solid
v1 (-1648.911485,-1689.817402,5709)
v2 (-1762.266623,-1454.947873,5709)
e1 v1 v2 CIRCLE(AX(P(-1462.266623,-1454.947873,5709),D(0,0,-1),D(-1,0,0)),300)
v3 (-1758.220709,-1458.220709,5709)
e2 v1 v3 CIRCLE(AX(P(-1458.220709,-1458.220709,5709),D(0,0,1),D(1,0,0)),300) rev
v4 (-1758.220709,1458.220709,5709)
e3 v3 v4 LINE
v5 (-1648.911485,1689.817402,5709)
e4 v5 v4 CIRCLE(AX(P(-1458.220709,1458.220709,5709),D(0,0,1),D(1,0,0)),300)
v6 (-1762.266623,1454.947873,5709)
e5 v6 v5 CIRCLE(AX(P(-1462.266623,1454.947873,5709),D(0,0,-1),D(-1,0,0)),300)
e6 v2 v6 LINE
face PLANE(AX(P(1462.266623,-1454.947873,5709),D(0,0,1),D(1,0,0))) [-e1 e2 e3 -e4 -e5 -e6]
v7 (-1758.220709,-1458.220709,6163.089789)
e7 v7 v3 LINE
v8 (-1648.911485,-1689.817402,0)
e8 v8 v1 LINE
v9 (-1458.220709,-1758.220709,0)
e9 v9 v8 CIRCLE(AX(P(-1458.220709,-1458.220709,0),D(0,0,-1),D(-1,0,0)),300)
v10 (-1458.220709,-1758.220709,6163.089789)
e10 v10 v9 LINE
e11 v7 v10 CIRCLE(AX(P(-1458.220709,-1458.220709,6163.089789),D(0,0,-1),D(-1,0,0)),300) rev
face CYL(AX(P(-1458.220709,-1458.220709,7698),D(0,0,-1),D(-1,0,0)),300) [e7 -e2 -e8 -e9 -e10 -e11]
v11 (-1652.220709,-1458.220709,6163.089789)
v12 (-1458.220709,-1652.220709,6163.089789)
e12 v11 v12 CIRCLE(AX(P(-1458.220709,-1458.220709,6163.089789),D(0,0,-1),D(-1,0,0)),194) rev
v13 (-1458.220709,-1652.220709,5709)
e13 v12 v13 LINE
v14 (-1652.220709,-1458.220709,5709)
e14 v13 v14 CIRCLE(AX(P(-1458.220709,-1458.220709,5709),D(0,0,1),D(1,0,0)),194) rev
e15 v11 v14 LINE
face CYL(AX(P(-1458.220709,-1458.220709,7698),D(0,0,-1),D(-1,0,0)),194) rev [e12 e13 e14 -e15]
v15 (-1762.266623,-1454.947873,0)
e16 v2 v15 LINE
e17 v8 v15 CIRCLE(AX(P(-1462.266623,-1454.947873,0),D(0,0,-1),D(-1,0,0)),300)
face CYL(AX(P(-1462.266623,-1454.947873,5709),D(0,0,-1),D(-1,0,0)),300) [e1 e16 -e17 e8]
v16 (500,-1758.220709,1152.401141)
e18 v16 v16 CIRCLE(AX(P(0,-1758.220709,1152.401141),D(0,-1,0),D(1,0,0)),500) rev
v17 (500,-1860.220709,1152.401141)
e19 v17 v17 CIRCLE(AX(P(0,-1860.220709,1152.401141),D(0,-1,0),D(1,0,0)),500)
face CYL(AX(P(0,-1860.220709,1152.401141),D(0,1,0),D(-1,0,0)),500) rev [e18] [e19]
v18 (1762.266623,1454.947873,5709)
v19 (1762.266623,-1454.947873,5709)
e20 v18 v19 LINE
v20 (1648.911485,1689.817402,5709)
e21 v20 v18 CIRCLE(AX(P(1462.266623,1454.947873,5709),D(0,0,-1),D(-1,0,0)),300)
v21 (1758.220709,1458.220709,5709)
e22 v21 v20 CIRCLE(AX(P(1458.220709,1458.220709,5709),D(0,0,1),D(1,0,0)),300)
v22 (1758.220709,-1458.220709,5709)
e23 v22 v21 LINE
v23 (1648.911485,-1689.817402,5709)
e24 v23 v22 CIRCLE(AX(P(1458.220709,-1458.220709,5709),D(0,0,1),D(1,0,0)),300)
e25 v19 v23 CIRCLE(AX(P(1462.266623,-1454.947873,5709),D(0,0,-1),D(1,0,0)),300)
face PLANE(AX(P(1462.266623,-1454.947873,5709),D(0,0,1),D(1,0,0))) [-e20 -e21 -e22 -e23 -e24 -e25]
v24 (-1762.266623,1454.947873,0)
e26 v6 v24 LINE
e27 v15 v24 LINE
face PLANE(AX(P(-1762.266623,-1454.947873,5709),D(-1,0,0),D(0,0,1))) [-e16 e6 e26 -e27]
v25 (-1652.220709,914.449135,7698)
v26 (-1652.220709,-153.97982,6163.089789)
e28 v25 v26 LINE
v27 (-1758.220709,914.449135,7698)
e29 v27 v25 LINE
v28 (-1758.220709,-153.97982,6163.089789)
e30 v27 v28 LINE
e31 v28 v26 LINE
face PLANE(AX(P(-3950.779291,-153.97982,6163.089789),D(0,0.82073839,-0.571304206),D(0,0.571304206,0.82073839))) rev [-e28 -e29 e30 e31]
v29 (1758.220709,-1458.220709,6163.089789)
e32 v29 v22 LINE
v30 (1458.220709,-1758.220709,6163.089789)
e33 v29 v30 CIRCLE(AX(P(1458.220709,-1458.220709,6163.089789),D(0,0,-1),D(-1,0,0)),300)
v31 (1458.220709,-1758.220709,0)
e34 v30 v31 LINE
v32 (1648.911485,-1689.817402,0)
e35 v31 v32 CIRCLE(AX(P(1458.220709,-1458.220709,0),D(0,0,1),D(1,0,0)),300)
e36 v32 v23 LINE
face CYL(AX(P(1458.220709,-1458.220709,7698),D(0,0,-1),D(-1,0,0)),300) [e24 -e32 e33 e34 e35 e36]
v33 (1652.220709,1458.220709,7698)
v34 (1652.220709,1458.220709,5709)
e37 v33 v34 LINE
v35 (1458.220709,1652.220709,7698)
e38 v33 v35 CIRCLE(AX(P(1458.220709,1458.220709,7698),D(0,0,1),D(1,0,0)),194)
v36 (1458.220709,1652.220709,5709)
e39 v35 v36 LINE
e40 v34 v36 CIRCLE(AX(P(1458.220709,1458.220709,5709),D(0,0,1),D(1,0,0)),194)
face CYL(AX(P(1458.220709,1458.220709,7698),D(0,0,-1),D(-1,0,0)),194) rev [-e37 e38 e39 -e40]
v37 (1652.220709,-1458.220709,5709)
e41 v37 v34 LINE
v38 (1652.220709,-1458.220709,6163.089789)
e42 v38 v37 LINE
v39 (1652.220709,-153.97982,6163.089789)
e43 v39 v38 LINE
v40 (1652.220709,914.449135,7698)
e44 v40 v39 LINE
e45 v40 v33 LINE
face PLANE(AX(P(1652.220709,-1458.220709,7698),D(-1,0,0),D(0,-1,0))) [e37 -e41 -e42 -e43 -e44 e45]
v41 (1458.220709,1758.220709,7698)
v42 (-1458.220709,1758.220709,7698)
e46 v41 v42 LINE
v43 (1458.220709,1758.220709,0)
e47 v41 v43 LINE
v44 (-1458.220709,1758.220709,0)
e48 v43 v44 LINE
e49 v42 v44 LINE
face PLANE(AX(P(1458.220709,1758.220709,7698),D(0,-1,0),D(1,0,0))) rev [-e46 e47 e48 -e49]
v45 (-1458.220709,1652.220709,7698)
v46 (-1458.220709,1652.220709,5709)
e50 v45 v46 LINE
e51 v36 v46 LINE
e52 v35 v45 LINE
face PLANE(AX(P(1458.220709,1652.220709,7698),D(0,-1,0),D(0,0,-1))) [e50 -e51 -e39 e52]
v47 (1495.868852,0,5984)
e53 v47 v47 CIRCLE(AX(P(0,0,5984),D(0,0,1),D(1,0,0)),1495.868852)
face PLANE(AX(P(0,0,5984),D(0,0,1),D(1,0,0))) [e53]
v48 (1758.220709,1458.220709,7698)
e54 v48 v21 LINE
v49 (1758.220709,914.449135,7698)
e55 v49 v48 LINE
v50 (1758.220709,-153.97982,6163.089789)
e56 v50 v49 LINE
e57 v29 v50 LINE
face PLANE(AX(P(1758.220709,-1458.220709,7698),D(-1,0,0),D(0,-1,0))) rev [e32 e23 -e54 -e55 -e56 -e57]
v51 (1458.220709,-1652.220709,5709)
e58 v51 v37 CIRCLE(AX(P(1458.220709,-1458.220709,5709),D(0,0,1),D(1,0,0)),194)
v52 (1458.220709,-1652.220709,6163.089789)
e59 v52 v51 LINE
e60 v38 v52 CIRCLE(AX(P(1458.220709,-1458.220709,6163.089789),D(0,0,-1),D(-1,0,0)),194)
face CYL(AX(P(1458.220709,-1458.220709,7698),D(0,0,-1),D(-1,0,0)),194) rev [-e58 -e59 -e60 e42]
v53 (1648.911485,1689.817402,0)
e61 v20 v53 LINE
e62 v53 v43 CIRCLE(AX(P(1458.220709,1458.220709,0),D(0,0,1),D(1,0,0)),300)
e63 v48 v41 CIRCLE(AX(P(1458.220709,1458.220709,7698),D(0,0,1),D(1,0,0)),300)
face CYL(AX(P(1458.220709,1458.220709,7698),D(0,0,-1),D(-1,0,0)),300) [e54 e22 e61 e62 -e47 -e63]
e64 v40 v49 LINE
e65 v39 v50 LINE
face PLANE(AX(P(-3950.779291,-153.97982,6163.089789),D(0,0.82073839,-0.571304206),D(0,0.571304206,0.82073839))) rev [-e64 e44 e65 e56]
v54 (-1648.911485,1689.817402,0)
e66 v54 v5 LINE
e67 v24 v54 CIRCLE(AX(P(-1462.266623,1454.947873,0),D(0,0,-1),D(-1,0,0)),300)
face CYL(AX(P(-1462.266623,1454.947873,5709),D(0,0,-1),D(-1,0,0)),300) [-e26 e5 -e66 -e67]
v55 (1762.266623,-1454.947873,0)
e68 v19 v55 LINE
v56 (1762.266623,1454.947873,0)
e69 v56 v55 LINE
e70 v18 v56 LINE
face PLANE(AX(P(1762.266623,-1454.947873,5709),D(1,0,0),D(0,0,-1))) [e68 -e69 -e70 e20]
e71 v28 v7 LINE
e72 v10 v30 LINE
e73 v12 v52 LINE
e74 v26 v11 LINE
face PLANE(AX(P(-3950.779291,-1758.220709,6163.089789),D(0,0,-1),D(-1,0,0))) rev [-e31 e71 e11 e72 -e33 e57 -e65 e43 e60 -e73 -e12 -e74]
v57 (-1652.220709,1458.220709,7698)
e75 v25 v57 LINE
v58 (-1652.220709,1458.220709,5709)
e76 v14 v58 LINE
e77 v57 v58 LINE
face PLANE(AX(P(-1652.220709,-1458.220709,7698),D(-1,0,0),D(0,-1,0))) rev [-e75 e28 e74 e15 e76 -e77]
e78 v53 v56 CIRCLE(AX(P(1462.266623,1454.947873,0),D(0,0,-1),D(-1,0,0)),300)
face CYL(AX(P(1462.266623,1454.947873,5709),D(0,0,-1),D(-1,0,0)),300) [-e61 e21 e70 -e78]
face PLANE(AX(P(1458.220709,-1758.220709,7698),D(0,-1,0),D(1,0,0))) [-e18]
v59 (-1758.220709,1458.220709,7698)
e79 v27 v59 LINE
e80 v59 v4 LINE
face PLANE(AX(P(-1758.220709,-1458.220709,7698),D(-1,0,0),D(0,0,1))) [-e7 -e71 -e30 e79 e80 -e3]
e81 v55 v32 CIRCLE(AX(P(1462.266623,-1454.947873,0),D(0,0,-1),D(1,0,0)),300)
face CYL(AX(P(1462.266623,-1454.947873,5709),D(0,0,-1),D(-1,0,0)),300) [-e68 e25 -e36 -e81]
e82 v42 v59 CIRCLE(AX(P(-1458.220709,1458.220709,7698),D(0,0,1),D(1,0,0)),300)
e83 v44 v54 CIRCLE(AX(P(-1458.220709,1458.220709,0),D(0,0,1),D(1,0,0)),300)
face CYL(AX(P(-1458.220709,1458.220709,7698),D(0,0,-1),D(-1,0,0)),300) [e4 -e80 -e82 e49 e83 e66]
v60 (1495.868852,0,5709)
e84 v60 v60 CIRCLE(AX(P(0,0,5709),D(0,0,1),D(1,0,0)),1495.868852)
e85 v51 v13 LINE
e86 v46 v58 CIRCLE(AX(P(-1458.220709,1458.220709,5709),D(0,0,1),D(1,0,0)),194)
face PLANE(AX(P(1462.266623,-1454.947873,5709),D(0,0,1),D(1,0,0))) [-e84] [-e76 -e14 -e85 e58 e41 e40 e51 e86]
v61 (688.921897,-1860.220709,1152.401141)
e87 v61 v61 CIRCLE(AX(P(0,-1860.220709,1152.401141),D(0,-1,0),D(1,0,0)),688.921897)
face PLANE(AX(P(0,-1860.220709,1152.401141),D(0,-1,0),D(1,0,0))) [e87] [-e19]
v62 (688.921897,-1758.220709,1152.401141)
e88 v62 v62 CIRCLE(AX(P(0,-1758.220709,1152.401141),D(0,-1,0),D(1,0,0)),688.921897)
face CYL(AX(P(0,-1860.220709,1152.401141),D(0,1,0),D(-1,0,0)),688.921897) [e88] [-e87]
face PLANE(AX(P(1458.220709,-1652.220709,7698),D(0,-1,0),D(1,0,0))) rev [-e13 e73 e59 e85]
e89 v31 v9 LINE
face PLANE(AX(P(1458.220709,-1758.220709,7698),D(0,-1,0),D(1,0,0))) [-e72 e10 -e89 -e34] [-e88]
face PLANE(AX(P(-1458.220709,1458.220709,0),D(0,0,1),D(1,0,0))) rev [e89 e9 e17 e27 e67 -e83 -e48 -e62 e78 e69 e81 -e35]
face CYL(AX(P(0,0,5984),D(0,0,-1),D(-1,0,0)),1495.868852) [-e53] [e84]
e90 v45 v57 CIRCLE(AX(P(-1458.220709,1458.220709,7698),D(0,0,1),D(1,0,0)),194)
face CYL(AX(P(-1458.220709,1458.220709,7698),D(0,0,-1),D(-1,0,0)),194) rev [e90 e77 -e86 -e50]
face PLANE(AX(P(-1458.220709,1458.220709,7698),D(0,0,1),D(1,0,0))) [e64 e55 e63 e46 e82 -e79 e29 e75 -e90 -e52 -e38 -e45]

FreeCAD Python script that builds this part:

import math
import FreeCAD as App
import Part
import Sketcher
from FreeCAD import Vector
Q = App.Units.Quantity

doc = App.newDocument("Part")
params = doc.addObject("Spreadsheet::Sheet", "Params")
for row, (alias, value) in enumerate([
    ("sketch1_radius", "300 mm"),
    ("sketch1_radius2", "194 mm"),
    ("pad1_length", "7698 mm"),
    ("sketch2_radius", "300 mm"),
    ("pad2_length", "5709 mm"),
    ("pocket1_length", "5709 mm"),
    ("sketch4_diameter", "1000 mm"),
    ("pad3_length", "102 mm"),
    ("pad4_length", "275 mm"),
], start=1):
    params.set(f"A{row}", alias)
    params.set(f"B{row}", "=" + value)
    params.setAlias(f"B{row}", alias)

body = doc.addObject("PartDesign::Body", "Body")

# Sketch on XY plane
sketch1 = body.newObject("Sketcher::SketchObject", "Sketch")
sketch1.AttachmentSupport = (doc.getObject("XY_Plane"), [""])
sketch1.MapMode = "FlatFace"
sketch1.addGeometry([
    Part.LineSegment(Vector(-1458, -1758, 0), Vector(1458, -1758, 0)),  # 0
    Part.ArcOfCircle(Part.Circle(Vector(1458, -1458, 0), Vector(0, 0, 1), 300), math.radians(-90), math.radians(0)),  # 1
    Part.LineSegment(Vector(1758, -1458, 0), Vector(1758, 1458, 0)),  # 2
    Part.ArcOfCircle(Part.Circle(Vector(1458, 1458, 0), Vector(0, 0, 1), 300), math.radians(0), math.radians(90)),  # 3
    Part.LineSegment(Vector(1458, 1758, 0), Vector(-1458, 1758, 0)),  # 4
    Part.ArcOfCircle(Part.Circle(Vector(-1458, 1458, 0), Vector(0, 0, 1), 300), math.radians(90), math.radians(180)),  # 5
    Part.LineSegment(Vector(-1758, 1458, 0), Vector(-1758, -1458, 0)),  # 6
    Part.ArcOfCircle(Part.Circle(Vector(-1458, -1458, 0), Vector(0, 0, 1), 300), math.radians(180), math.radians(270)),  # 7
    Part.ArcOfCircle(Part.Circle(Vector(1458, 1458, 0), Vector(0, 0, 1), 194), math.radians(0), math.radians(90)),  # 8
    Part.LineSegment(Vector(1652, 1458, 0), Vector(1652, -1458, 0)),  # 9
    Part.ArcOfCircle(Part.Circle(Vector(1458, -1458, 0), Vector(0, 0, 1), 194), math.radians(-90), math.radians(0)),  # 10
    Part.LineSegment(Vector(1458, -1652, 0), Vector(-1458, -1652, 0)),  # 11
    Part.ArcOfCircle(Part.Circle(Vector(-1458, -1458, 0), Vector(0, 0, 1), 194), math.radians(-180), math.radians(-90)),  # 12
    Part.LineSegment(Vector(-1652, -1458, 0), Vector(-1652, 1458, 0)),  # 13
    Part.ArcOfCircle(Part.Circle(Vector(-1458, 1458, 0), Vector(0, 0, 1), 194), math.radians(90), math.radians(180)),  # 14
    Part.LineSegment(Vector(-1458, 1652, 0), Vector(1458, 1652, 0)),  # 15
], False)
sketch1.addConstraint([
    Sketcher.Constraint("Tangent", 0, 2, 1, 1),
    Sketcher.Constraint("Tangent", 1, 2, 2, 1),
    Sketcher.Constraint("Tangent", 2, 2, 3, 1),
    Sketcher.Constraint("Tangent", 3, 2, 4, 1),
    Sketcher.Constraint("Tangent", 4, 2, 5, 1),
    Sketcher.Constraint("Tangent", 5, 2, 6, 1),
    Sketcher.Constraint("Tangent", 6, 2, 7, 1),
    Sketcher.Constraint("Tangent", 7, 2, 0, 1),
    Sketcher.Constraint("Tangent", 8, 1, 9, 1),
    Sketcher.Constraint("Tangent", 9, 2, 10, 2),
    Sketcher.Constraint("Tangent", 10, 1, 11, 1),
    Sketcher.Constraint("Tangent", 11, 2, 12, 2),
    Sketcher.Constraint("Tangent", 12, 1, 13, 1),
    Sketcher.Constraint("Tangent", 13, 2, 14, 2),
    Sketcher.Constraint("Tangent", 14, 1, 15, 1),
    Sketcher.Constraint("Tangent", 15, 2, 8, 2),
    Sketcher.Constraint("Horizontal", 0),
    Sketcher.Constraint("Vertical", 2),
    Sketcher.Constraint("Horizontal", 4),
    Sketcher.Constraint("Vertical", 6),
    Sketcher.Constraint("Vertical", 9),
    Sketcher.Constraint("Horizontal", 11),
    Sketcher.Constraint("Vertical", 13),
    Sketcher.Constraint("Horizontal", 15),
    Sketcher.Constraint("Coincident", 8, 3, 3, 3),
    Sketcher.Constraint("Coincident", 10, 3, 1, 3),
    Sketcher.Constraint("Coincident", 12, 3, 7, 3),
    Sketcher.Constraint("Equal", 1, 3),
    Sketcher.Constraint("Equal", 3, 5),
    Sketcher.Constraint("Equal", 5, 7),
    Sketcher.Constraint("Equal", 12, 14),
    Sketcher.Constraint("Symmetric", 1, 3, 5, 3, -1, 1),
    Sketcher.Constraint("Equal", 15, 2),
    Sketcher.Constraint("Radius", 1, Q("300 mm")),
    Sketcher.Constraint("Radius", 8, Q("194 mm")),
    Sketcher.Constraint("DistanceX", 0, 1, 0, 2, Q("2916.441419 mm")),
])
sketch1.setExpression("Constraints[33]", "Params.sketch1_radius")
sketch1.setExpression("Constraints[34]", "Params.sketch1_radius2")
pad1 = body.newObject("PartDesign::Pad", "Pad")
pad1.Profile = sketch1
pad1.setExpression("Length", "Params.pad1_length")

# Sketch on XY plane
sketch2 = body.newObject("Sketcher::SketchObject", "Sketch001")
sketch2.AttachmentSupport = (doc.getObject("XY_Plane"), [""])
sketch2.MapMode = "FlatFace"
sketch2.addGeometry([
    Part.LineSegment(Vector(1462, -1755, 0), Vector(-1462, -1755, 0)),  # 0
    Part.ArcOfCircle(Part.Circle(Vector(-1462, -1455, 0), Vector(0, 0, 1), 300), math.radians(180), math.radians(270)),  # 1
    Part.LineSegment(Vector(-1762, -1455, 0), Vector(-1762, 1455, 0)),  # 2
    Part.ArcOfCircle(Part.Circle(Vector(-1462, 1455, 0), Vector(0, 0, 1), 300), math.radians(90), math.radians(180)),  # 3
    Part.LineSegment(Vector(-1462, 1755, 0), Vector(1462, 1755, 0)),  # 4
    Part.ArcOfCircle(Part.Circle(Vector(1462, 1455, 0), Vector(0, 0, 1), 300), math.radians(0), math.radians(90)),  # 5
    Part.LineSegment(Vector(1762, 1455, 0), Vector(1762, -1455, 0)),  # 6
    Part.ArcOfCircle(Part.Circle(Vector(1462, -1455, 0), Vector(0, 0, 1), 300), math.radians(-90), math.radians(0)),  # 7
], False)
sketch2.addConstraint([
    Sketcher.Constraint("Tangent", 0, 2, 1, 2),
    Sketcher.Constraint("Tangent", 1, 1, 2, 1),
    Sketcher.Constraint("Tangent", 2, 2, 3, 2),
    Sketcher.Constraint("Tangent", 3, 1, 4, 1),
    Sketcher.Constraint("Tangent", 4, 2, 5, 2),
    Sketcher.Constraint("Tangent", 5, 1, 6, 1),
    Sketcher.Constraint("Tangent", 6, 2, 7, 2),
    Sketcher.Constraint("Tangent", 7, 1, 0, 1),
    Sketcher.Constraint("Horizontal", 0),
    Sketcher.Constraint("Vertical", 2),
    Sketcher.Constraint("Horizontal", 4),
    Sketcher.Constraint("Vertical", 6),
    Sketcher.Constraint("Equal", 1, 3),
    Sketcher.Constraint("Equal", 3, 5),
    Sketcher.Constraint("Equal", 5, 7),
    Sketcher.Constraint("Symmetric", 1, 3, 5, 3, -1, 1),
    Sketcher.Constraint("Radius", 1, Q("300 mm")),
    Sketcher.Constraint("DistanceX", 0, 2, 0, 1, Q("2924.533247 mm")),
    Sketcher.Constraint("DistanceY", 2, 1, 2, 2, Q("2909.895746 mm")),
])
sketch2.setExpression("Constraints[16]", "Params.sketch2_radius")
pad2 = body.newObject("PartDesign::Pad", "Pad001")
pad2.Profile = sketch2
pad2.setExpression("Length", "Params.pad2_length")

# Sketch on YZ plane
sketch3 = body.newObject("Sketcher::SketchObject", "Sketch002")
sketch3.AttachmentSupport = (doc.getObject("YZ_Plane"), [""])
sketch3.MapMode = "FlatFace"
sketch3.AttachmentOffset = App.Placement(Vector(0, 0, 1758.220709), App.Rotation())
sketch3.addGeometry([
    Part.LineSegment(Vector(914, 7698, 0), Vector(-1758, 7698, 0)),
    Part.LineSegment(Vector(-1758, 7698, 0), Vector(-1758, 6163, 0)),
    Part.LineSegment(Vector(-1758, 6163, 0), Vector(-154, 6163, 0)),
    Part.LineSegment(Vector(-154, 6163, 0), Vector(914, 7698, 0)),
], False)
sketch3.addConstraint([
    Sketcher.Constraint("Coincident", 0, 2, 1, 1),
    Sketcher.Constraint("Coincident", 1, 2, 2, 1),
    Sketcher.Constraint("Coincident", 2, 2, 3, 1),
    Sketcher.Constraint("Coincident", 3, 2, 0, 1),
    Sketcher.Constraint("Horizontal", 0),
    Sketcher.Constraint("Vertical", 1),
    Sketcher.Constraint("Horizontal", 2),
    Sketcher.Constraint("DistanceY", -1, 1, 0, 2, Q("7698 mm")),
    Sketcher.Constraint("DistanceX", 2, 1, 2, 2, Q("1604.24089 mm")),
    Sketcher.Constraint("DistanceY", 1, 2, 1, 1, Q("1534.910211 mm")),
    Sketcher.Constraint("Distance", 3, Q("1870.15769 mm")),
    Sketcher.Constraint("DistanceX", 0, 2, -1, 1, Q("1758.220709 mm")),
])
pocket1 = body.newObject("PartDesign::Pocket", "Pocket")
pocket1.Profile = sketch3
pocket1.setExpression("Length", "Params.pocket1_length")

# Sketch on XZ plane
sketch4 = body.newObject("Sketcher::SketchObject", "Sketch003")
sketch4.AttachmentSupport = (doc.getObject("XZ_Plane"), [""])
sketch4.MapMode = "FlatFace"
sketch4.AttachmentOffset = App.Placement(Vector(0, 0, 1758.220709), App.Rotation())
sketch4.addGeometry([
    Part.Circle(Vector(0, 1152, 0), Vector(0, 0, 1), 689),
    Part.Circle(Vector(0, 1152, 0), Vector(0, 0, 1), 500),
], False)
sketch4.addConstraint([
    Sketcher.Constraint("Coincident", 1, 3, 0, 3),
    Sketcher.Constraint("PointOnObject", 0, 3, -2),
    Sketcher.Constraint("Diameter", 1, Q("1000 mm")),
    Sketcher.Constraint("Diameter", 0, Q("1377.843794 mm")),
    Sketcher.Constraint("DistanceY", -1, 1, 0, 3, Q("1152.401141 mm")),
])
sketch4.setExpression("Constraints[2]", "Params.sketch4_diameter")
pad3 = body.newObject("PartDesign::Pad", "Pad002")
pad3.Profile = sketch4
pad3.setExpression("Length", "Params.pad3_length")

# Sketch on XY plane
sketch5 = body.newObject("Sketcher::SketchObject", "Sketch004")
sketch5.AttachmentSupport = (doc.getObject("XY_Plane"), [""])
sketch5.MapMode = "FlatFace"
sketch5.AttachmentOffset = App.Placement(Vector(0, 0, 5709), App.Rotation())
sketch5.addGeometry(Part.Circle(Vector(0, 0, 0), Vector(0, 0, 1), 1496), False)
sketch5.addConstraint([
    Sketcher.Constraint("Coincident", 0, 3, -1, 1),
    Sketcher.Constraint("Diameter", 0, Q("2991.737704 mm")),
])
pad4 = body.newObject("PartDesign::Pad", "Pad003")
pad4.Profile = sketch5
pad4.setExpression("Length", "Params.pad4_length")

doc.recompute()
